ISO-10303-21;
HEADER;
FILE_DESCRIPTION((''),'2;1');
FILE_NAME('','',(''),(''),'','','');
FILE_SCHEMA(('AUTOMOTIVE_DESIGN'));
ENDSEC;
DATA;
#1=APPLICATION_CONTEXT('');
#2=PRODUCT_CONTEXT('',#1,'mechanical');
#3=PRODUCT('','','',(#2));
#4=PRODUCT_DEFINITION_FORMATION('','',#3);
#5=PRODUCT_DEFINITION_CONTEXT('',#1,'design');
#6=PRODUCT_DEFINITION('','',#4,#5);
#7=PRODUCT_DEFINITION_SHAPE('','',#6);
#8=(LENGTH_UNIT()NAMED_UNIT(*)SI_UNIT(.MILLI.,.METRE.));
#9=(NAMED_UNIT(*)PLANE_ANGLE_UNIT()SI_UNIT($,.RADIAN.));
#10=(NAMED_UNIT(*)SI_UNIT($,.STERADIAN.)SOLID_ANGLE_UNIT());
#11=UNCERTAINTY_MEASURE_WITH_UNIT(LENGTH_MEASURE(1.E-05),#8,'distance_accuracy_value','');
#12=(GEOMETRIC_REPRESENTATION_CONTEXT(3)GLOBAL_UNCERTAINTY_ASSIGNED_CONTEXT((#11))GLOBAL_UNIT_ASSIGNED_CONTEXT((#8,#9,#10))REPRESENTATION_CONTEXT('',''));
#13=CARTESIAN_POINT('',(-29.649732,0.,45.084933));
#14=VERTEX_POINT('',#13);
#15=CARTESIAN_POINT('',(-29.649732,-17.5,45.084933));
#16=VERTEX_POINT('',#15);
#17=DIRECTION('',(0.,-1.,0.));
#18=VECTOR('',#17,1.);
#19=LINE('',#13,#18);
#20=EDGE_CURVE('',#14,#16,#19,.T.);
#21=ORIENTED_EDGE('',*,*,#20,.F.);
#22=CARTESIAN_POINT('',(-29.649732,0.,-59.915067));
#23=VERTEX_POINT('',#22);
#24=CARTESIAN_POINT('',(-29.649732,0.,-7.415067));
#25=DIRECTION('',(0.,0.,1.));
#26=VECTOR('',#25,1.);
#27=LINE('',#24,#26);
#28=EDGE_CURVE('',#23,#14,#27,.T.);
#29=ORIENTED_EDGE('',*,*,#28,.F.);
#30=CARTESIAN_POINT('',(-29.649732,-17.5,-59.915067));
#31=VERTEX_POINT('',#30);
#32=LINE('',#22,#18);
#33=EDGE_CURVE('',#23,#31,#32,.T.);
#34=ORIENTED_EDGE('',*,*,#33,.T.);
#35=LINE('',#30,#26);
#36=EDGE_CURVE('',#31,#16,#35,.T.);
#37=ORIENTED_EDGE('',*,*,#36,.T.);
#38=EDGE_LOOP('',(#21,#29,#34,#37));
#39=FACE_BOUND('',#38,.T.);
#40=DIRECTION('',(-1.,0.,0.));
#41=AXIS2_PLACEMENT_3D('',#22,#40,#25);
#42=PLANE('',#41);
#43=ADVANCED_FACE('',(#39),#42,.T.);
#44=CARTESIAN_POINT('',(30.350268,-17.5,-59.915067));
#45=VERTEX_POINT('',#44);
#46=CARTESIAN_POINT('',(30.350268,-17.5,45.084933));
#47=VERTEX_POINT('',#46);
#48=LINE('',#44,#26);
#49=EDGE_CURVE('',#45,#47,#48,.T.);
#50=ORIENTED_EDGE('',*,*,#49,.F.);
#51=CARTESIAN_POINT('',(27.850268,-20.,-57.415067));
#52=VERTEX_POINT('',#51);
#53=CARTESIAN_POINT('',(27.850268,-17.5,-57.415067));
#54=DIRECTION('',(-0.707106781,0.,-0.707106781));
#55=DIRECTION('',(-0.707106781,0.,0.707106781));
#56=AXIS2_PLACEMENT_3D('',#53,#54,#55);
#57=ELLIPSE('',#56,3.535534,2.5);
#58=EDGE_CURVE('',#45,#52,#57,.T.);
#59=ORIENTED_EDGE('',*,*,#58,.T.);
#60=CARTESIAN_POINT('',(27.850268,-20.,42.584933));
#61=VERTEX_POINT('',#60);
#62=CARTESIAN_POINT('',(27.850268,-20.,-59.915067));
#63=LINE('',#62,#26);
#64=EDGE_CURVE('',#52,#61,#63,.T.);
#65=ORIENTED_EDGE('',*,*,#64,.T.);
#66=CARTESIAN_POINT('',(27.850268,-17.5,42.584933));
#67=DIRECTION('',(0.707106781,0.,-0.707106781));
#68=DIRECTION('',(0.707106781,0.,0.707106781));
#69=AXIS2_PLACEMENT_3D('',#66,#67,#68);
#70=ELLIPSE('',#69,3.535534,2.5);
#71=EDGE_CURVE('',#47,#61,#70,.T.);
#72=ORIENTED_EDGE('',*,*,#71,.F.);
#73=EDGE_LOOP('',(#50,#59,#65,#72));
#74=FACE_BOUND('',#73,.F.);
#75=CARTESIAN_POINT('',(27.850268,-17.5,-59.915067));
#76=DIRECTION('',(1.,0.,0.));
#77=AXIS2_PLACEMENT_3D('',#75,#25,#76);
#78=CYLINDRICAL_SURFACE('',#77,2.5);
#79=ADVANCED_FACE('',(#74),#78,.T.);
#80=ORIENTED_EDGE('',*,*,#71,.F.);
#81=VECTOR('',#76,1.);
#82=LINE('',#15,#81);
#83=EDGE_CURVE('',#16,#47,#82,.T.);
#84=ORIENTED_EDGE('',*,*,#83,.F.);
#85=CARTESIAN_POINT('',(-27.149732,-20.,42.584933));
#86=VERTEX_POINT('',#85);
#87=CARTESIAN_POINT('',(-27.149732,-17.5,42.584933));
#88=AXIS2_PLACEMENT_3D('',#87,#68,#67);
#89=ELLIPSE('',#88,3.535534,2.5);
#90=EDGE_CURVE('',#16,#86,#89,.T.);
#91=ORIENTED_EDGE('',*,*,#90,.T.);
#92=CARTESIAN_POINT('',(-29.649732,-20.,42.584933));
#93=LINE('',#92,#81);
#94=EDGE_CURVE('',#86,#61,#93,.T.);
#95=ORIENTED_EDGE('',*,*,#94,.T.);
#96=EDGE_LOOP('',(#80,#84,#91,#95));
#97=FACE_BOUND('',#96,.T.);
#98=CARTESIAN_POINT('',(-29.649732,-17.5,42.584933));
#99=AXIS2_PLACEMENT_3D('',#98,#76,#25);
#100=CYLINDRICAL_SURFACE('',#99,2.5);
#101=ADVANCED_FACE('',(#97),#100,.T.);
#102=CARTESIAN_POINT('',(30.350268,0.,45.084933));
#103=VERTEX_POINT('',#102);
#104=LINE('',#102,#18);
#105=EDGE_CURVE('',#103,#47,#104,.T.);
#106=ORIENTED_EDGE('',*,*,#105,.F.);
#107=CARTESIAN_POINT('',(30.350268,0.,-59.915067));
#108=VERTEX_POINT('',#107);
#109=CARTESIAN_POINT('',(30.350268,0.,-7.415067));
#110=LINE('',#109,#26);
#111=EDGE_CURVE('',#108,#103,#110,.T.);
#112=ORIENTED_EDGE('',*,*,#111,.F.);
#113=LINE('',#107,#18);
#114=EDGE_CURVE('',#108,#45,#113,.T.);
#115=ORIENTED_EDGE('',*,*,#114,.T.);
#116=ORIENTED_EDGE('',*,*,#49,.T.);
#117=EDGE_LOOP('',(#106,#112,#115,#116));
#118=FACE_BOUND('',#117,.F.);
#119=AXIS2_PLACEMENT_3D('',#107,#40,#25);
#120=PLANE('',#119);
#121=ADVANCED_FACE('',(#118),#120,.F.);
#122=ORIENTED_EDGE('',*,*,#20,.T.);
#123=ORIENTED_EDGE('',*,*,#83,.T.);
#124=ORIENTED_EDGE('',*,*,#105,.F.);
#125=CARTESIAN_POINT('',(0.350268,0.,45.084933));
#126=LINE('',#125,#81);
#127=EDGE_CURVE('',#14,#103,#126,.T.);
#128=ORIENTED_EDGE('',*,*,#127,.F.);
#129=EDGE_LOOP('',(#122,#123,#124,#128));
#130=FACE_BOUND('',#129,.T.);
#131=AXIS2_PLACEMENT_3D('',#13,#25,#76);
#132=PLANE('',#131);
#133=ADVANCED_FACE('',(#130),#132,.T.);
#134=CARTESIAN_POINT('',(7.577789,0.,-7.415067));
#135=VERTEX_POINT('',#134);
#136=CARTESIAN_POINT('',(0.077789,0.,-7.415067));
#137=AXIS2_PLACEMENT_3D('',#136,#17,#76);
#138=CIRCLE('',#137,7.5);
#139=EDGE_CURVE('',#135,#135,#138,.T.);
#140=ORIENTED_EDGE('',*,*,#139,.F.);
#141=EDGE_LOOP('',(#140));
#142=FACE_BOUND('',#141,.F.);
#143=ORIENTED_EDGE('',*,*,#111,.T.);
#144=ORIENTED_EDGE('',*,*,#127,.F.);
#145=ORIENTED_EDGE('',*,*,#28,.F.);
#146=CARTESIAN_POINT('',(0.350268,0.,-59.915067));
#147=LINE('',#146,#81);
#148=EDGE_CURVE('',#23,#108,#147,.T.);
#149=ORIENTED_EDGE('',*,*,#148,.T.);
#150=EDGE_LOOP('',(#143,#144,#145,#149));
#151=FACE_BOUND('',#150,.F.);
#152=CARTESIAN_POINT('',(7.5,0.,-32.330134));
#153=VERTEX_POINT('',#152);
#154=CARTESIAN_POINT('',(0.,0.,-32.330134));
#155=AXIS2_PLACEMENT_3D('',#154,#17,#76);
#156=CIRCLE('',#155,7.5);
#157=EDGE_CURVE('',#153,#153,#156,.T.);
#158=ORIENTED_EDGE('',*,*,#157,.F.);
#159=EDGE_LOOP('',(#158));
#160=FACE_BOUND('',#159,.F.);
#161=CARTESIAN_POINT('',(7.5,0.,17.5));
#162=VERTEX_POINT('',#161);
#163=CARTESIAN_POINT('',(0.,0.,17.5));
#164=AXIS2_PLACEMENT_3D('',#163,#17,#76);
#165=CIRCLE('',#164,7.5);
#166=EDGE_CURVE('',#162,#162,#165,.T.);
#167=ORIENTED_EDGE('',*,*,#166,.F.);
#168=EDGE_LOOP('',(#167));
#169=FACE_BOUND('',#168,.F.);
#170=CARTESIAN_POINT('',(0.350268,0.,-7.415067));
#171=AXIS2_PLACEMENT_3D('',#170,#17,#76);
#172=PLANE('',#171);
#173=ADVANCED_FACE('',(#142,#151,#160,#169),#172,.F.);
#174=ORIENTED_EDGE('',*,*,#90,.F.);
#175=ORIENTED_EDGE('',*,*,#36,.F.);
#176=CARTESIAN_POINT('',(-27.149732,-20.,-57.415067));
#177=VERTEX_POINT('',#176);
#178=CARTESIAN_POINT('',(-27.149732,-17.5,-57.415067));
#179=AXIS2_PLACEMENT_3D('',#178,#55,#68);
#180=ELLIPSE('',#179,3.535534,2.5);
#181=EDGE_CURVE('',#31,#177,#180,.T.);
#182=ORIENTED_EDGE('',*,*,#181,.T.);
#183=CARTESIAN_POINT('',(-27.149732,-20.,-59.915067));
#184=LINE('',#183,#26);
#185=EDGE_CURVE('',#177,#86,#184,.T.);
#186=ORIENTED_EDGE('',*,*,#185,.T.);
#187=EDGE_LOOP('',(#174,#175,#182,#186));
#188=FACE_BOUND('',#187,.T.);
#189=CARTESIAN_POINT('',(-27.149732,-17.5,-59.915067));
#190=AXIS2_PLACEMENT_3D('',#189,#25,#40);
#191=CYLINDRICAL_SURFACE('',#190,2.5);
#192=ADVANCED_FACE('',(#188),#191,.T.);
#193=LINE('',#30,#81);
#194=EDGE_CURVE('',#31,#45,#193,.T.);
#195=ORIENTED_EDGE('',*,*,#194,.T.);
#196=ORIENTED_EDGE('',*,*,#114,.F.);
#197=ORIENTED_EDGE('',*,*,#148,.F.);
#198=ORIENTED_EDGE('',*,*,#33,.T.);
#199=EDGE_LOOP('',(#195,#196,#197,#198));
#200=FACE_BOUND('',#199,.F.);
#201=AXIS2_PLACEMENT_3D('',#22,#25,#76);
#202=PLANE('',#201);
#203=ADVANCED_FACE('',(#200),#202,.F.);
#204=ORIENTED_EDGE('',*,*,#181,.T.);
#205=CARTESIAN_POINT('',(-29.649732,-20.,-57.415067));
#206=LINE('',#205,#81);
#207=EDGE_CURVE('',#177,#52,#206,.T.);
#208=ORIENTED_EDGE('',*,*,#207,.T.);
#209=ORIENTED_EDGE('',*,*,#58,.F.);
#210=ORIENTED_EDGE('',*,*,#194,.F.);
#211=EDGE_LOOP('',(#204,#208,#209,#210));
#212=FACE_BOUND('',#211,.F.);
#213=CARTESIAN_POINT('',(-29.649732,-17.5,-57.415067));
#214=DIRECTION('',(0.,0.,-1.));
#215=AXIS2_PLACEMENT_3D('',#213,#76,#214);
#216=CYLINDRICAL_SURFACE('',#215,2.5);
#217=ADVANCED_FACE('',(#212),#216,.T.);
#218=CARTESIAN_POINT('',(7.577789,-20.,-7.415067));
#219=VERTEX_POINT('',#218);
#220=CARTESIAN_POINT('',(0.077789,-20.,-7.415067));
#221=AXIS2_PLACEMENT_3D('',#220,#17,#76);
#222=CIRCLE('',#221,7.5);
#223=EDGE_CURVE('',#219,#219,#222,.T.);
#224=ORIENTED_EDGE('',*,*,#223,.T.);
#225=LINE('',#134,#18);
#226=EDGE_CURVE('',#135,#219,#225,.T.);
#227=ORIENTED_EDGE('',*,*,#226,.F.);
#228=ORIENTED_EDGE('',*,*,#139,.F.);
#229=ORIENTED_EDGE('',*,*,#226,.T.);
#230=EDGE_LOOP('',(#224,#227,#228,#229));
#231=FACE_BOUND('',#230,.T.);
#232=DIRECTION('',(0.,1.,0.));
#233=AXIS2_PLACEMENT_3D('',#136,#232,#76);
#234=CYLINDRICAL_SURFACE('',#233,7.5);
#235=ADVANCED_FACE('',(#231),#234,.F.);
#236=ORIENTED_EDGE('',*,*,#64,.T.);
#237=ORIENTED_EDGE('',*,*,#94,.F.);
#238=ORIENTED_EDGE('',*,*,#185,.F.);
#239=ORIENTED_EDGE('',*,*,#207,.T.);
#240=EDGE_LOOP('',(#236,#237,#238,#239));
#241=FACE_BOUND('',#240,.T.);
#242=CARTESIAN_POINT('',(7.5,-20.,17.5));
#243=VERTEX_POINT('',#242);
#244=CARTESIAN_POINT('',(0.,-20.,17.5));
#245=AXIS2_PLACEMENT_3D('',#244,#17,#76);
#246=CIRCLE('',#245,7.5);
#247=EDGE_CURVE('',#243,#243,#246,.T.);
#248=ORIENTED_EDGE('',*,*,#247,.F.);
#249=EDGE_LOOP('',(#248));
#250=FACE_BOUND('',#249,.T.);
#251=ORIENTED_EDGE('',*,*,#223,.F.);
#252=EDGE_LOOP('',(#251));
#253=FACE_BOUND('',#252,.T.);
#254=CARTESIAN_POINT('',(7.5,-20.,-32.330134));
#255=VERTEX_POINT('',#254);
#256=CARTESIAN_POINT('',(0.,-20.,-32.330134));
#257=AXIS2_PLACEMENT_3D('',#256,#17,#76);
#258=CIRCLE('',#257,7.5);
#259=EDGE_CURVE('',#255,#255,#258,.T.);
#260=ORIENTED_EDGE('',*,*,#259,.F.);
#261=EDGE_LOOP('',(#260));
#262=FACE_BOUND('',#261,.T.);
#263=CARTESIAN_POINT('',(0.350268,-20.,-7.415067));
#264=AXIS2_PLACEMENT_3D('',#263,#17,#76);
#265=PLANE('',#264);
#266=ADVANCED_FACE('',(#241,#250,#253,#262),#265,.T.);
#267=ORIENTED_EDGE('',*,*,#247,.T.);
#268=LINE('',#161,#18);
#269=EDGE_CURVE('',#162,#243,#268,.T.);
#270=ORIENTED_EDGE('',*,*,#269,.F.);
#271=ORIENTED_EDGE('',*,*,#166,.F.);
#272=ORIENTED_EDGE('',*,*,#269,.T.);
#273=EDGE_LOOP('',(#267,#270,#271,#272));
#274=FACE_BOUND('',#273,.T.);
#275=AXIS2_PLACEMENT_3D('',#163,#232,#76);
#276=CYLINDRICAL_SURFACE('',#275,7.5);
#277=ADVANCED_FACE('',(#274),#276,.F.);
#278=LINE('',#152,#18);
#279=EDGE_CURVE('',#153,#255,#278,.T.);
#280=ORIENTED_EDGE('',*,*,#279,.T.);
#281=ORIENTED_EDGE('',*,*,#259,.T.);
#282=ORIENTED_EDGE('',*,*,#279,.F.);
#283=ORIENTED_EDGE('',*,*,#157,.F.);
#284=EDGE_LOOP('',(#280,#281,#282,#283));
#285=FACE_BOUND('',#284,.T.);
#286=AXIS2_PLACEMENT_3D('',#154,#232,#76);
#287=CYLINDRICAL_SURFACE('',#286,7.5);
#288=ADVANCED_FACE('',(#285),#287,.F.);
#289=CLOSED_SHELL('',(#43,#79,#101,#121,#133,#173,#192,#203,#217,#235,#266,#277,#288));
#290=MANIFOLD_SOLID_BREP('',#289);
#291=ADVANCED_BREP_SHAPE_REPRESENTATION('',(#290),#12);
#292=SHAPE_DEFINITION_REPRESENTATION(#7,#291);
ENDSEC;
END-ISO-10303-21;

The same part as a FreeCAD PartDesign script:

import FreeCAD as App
import Part
import Sketcher

V = App.Vector


def edges_at(feature, points):
    """Names of the edges that pass closest to the given points."""
    edges = feature.Shape.Edges
    near = lambda p: min(range(len(edges)), key=lambda i: edges[i].distToShape(Part.Vertex(*p))[0])
    return sorted({f"Edge{near(p) + 1}" for p in points})

doc = App.newDocument("Part")
body = doc.addObject("PartDesign::Body", "Body")

# Sketch on XZ plane
sketch1 = body.newObject("Sketcher::SketchObject", "Sketch")
sketch1.AttachmentSupport = (doc.getObject("XZ_Plane"), [""])
sketch1.MapMode = "FlatFace"
sketch1.addGeometry(Part.LineSegment(V(-30, 45, 0), V(-30, -60, 0)), False)
sketch1.addGeometry(Part.LineSegment(V(-30, -60, 0), V(30, -60, 0)), False)
sketch1.addGeometry(Part.LineSegment(V(30, -60, 0), V(30, 45, 0)), False)
sketch1.addGeometry(Part.LineSegment(V(30, 45, 0), V(-30, 45, 0)), False)
sketch1.addGeometry(Part.Circle(V(0, -32, 0), V(0, 0, 1), 8), False)
sketch1.addGeometry(Part.Circle(V(0, 18, 0), V(0, 0, 1), 8), False)
sketch1.addGeometry(Part.Circle(V(0, -7, 0), V(0, 0, 1), 8), False)
sketch1.addConstraint(Sketcher.Constraint("Coincident", 0, 2, 1, 1))
sketch1.addConstraint(Sketcher.Constraint("Coincident", 1, 2, 2, 1))
sketch1.addConstraint(Sketcher.Constraint("Coincident", 2, 2, 3, 1))
sketch1.addConstraint(Sketcher.Constraint("Coincident", 3, 2, 0, 1))
sketch1.addConstraint(Sketcher.Constraint("Vertical", 0))
sketch1.addConstraint(Sketcher.Constraint("Horizontal", 1))
sketch1.addConstraint(Sketcher.Constraint("Vertical", 2))
sketch1.addConstraint(Sketcher.Constraint("Horizontal", 3))
sketch1.addConstraint(Sketcher.Constraint("Equal", 4, 5))
sketch1.addConstraint(Sketcher.Constraint("Equal", 5, 6))
sketch1.addConstraint(Sketcher.Constraint("PointOnObject", 4, 3, -2))
sketch1.addConstraint(Sketcher.Constraint("PointOnObject", 5, 3, -2))
sketch1.addConstraint(Sketcher.Constraint("Diameter", 4, 15.0))
sketch1.addConstraint(Sketcher.Constraint("DistanceX", 1, 1, 1, 2, 60.0))
sketch1.addConstraint(Sketcher.Constraint("DistanceY", 0, 2, 0, 1, 105.0))
sketch1.addConstraint(Sketcher.Constraint("DistanceY", -1, 1, 5, 3, 17.5))
sketch1.addConstraint(Sketcher.Constraint("DistanceY", 0, 2, 6, 3, 52.5))
sketch1.addConstraint(Sketcher.Constraint("DistanceX", -1, 1, 6, 3, 0.077789))
sketch1.addConstraint(Sketcher.Constraint("DistanceX", 0, 2, -1, 1, 29.649732))
sketch1.addConstraint(Sketcher.Constraint("DistanceY", 4, 3, -1, 1, 32.330134))
sketch1.addConstraint(Sketcher.Constraint("DistanceY", 6, 3, -1, 1, 7.415067))
pad1 = body.newObject("PartDesign::Pad", "Pad")
pad1.Profile = sketch1
pad1.Length = 20
doc.recompute()

fillet = body.newObject("PartDesign::Fillet", "Fillet")
fillet.Base = (pad1, edges_at(pad1, [
    (30.35, -20, -7.415),
    (0.35, -20, 45.085),
    (-29.65, -20, -7.415),
    (0.35, -20, -59.915),
]))
fillet.Radius = 2.5

doc.recompute()
